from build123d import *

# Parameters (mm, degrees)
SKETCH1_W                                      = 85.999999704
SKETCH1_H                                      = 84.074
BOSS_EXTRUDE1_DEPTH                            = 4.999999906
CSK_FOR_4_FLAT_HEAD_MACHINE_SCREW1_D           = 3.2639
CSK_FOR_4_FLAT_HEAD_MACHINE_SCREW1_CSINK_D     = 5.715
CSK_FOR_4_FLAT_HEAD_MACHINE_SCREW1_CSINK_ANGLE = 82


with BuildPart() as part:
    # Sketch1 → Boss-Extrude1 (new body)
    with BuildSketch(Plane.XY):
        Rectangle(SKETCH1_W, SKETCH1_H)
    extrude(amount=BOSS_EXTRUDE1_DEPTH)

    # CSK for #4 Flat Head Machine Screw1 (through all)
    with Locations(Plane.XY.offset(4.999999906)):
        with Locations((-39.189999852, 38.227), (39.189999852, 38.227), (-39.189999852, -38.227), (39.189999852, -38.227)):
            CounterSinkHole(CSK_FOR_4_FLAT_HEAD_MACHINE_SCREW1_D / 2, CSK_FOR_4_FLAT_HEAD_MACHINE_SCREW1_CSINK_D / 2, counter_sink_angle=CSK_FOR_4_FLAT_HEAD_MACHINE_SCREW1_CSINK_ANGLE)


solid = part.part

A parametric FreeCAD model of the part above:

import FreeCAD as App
import Part
import Sketcher
Q = App.Units.Quantity

doc = App.newDocument("Part")
body = doc.addObject("PartDesign::Body", "Body")

# Sketch on XY plane
sketch1 = body.newObject("Sketcher::SketchObject", "Sketch")
sketch1.AttachmentSupport = (doc.getObject("XY_Plane"), [""])
sketch1.MapMode = "FlatFace"
sketch1.addGeometry(Part.LineSegment(App.Vector(-43, 42, 0), App.Vector(-43, -42, 0)), False)
sketch1.addGeometry(Part.LineSegment(App.Vector(-43, -42, 0), App.Vector(43, -42, 0)), False)
sketch1.addGeometry(Part.LineSegment(App.Vector(43, -42, 0), App.Vector(43, 42, 0)), False)
sketch1.addGeometry(Part.LineSegment(App.Vector(43, 42, 0), App.Vector(-43, 42, 0)), False)
sketch1.addConstraint(Sketcher.Constraint("Coincident", 0, 2, 1, 1))
sketch1.addConstraint(Sketcher.Constraint("Coincident", 1, 2, 2, 1))
sketch1.addConstraint(Sketcher.Constraint("Coincident", 2, 2, 3, 1))
sketch1.addConstraint(Sketcher.Constraint("Coincident", 3, 2, 0, 1))
sketch1.addConstraint(Sketcher.Constraint("Vertical", 0))
sketch1.addConstraint(Sketcher.Constraint("Horizontal", 1))
sketch1.addConstraint(Sketcher.Constraint("Vertical", 2))
sketch1.addConstraint(Sketcher.Constraint("Horizontal", 3))
sketch1.addConstraint(Sketcher.Constraint("Symmetric", 0, 2, 2, 2, -1, 1))
sketch1.addConstraint(Sketcher.Constraint("DistanceX", 1, 1, 1, 2, Q("86 mm")))
sketch1.addConstraint(Sketcher.Constraint("DistanceY", 0, 2, 0, 1, Q("84.074 mm")))
pad1 = body.newObject("PartDesign::Pad", "Pad")
pad1.Profile = sketch1
pad1.Length = 5

# Sketch on XY plane
sketch2 = body.newObject("Sketcher::SketchObject", "Sketch001")
sketch2.AttachmentSupport = (doc.getObject("XY_Plane"), [""])
sketch2.MapMode = "FlatFace"
sketch2.AttachmentOffset = App.Placement(App.Vector(0, 0, 5), App.Rotation())
sketch2.addGeometry(Part.Circle(App.Vector(-39.2, 38.2, 0), App.Vector(0, 0, 1), 1.6), False)
sketch2.addGeometry(Part.Circle(App.Vector(39.2, 38.2, 0), App.Vector(0, 0, 1), 1.6), False)
sketch2.addGeometry(Part.Circle(App.Vector(-39.2, -38.2, 0), App.Vector(0, 0, 1), 1.6), False)
sketch2.addGeometry(Part.Circle(App.Vector(39.2, -38.2, 0), App.Vector(0, 0, 1), 1.6), False)
sketch2.addConstraint(Sketcher.Constraint("Equal", 0, 1))
sketch2.addConstraint(Sketcher.Constraint("Equal", 1, 2))
sketch2.addConstraint(Sketcher.Constraint("Equal", 2, 3))
sketch2.addConstraint(Sketcher.Constraint("Symmetric", 1, 3, 2, 3, -1, 1))
sketch2.addConstraint(Sketcher.Constraint("Symmetric", 0, 3, 3, 3, -1, 1))
sketch2.addConstraint(Sketcher.Constraint("Symmetric", 0, 3, 1, 3, -2))
sketch2.addConstraint(Sketcher.Constraint("Diameter", 0, Q("3.2639 mm")))
sketch2.addConstraint(Sketcher.Constraint("DistanceX", 0, 3, -1, 1, Q("39.19 mm")))
sketch2.addConstraint(Sketcher.Constraint("DistanceY", -1, 1, 0, 3, Q("38.227 mm")))
doc.recompute()
hole = body.newObject("PartDesign::Hole", "Hole")
hole.Profile = sketch2
hole.ThreadType = "None"
hole.Diameter = 3.2639
hole.DepthType = "ThroughAll"
hole.HoleCutType = "Countersink"
hole.HoleCutDiameter = 5.715
hole.HoleCutCountersinkAngle = 82

doc.recompute()
